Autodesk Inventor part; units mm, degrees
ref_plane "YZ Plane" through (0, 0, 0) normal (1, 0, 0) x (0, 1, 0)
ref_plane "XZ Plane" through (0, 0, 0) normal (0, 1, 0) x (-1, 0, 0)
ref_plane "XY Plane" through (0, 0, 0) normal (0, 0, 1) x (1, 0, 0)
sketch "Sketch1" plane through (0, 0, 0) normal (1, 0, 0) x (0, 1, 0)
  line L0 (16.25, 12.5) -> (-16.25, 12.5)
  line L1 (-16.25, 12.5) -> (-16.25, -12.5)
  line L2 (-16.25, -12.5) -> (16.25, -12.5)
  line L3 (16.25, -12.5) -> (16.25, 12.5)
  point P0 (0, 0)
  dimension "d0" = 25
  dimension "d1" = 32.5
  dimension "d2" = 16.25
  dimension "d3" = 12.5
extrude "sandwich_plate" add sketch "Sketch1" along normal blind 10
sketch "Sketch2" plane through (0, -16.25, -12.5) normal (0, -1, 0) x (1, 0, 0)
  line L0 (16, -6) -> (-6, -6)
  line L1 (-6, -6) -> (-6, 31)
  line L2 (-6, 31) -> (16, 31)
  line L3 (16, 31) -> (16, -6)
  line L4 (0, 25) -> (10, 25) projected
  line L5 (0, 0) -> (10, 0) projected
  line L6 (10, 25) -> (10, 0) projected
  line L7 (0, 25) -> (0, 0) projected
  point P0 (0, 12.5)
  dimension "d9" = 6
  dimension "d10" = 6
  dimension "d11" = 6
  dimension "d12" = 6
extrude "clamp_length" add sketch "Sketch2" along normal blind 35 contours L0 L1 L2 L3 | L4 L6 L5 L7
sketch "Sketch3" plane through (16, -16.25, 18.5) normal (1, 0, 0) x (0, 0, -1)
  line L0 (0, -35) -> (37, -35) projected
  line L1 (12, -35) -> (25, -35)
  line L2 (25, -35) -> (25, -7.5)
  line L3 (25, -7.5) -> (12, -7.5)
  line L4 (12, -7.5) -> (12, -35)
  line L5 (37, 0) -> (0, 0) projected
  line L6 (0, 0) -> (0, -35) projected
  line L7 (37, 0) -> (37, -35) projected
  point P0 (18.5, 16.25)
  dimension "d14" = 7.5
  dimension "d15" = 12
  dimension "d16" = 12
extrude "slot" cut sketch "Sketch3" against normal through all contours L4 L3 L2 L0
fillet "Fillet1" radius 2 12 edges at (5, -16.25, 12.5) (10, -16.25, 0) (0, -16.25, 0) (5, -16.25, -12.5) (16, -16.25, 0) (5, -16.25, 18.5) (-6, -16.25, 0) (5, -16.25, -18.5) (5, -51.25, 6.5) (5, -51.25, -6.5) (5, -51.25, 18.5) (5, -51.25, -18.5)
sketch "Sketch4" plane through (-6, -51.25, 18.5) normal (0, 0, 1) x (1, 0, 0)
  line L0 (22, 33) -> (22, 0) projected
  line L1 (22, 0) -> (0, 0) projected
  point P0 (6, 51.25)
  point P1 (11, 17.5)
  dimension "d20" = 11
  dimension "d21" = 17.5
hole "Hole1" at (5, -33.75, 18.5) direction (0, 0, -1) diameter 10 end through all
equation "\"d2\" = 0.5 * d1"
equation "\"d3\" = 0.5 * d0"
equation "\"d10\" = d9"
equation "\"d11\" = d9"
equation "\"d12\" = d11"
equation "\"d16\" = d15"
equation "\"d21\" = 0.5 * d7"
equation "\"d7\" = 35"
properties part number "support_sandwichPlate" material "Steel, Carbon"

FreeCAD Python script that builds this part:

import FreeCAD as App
import Part
import Sketcher

V = App.Vector
Q = App.Units.Quantity


def edges_at(feature, points):
    """Names of the edges that pass closest to the given points."""
    edges = feature.Shape.Edges
    near = lambda p: min(range(len(edges)), key=lambda i: edges[i].distToShape(Part.Vertex(*p))[0])
    return sorted({f"Edge{near(p) + 1}" for p in points})


def add_polygon(sketch, points):
    """Adds a closed chain of lines whose ends are joined by coincident constraints."""
    first, n = sketch.GeometryCount, len(points)
    for a, b in zip(points, points[1:] + points[:1]):
        sketch.addGeometry(Part.LineSegment(App.Vector(*a, 0), App.Vector(*b, 0)), False)
    for i in range(n):
        sketch.addConstraint(Sketcher.Constraint("Coincident", first + i, 2, first + (i + 1) % n, 1))

doc = App.newDocument("Part")
body = doc.addObject("PartDesign::Body", "Body")

# Sketch on YZ plane
sketch1 = body.newObject("Sketcher::SketchObject", "Sketch")
sketch1.AttachmentSupport = (doc.getObject("YZ_Plane"), [""])
sketch1.MapMode = "FlatFace"
add_polygon(sketch1, [(16, -12), (16, 12), (-16, 12), (-16, -12)])  # lines 0-3
sketch1.addConstraint(Sketcher.Constraint("Vertical", 0))
sketch1.addConstraint(Sketcher.Constraint("Horizontal", 1))
sketch1.addConstraint(Sketcher.Constraint("Vertical", 2))
sketch1.addConstraint(Sketcher.Constraint("Horizontal", 3))
sketch1.addConstraint(Sketcher.Constraint("Symmetric", 0, 2, 2, 2, -1, 1))
sketch1.addConstraint(Sketcher.Constraint("DistanceY", 0, 1, 0, 2, Q("25 mm")))
sketch1.addConstraint(Sketcher.Constraint("DistanceX", 1, 2, 1, 1, Q("32.5 mm")))
pad1 = body.newObject("PartDesign::Pad", "Pad")
pad1.Profile = sketch1
pad1.Length = 10

# Sketch on XZ plane
sketch2 = body.newObject("Sketcher::SketchObject", "Sketch001")
sketch2.AttachmentSupport = (doc.getObject("XZ_Plane"), [""])
sketch2.MapMode = "FlatFace"
sketch2.AttachmentOffset = App.Placement(V(0, 0, 16.25), App.Rotation())
add_polygon(sketch2, [(-6, -18), (16, -18), (16, 18), (-6, 18)])  # lines 0-3
sketch2.addConstraint(Sketcher.Constraint("Horizontal", 0))
sketch2.addConstraint(Sketcher.Constraint("Vertical", 1))
sketch2.addConstraint(Sketcher.Constraint("Horizontal", 2))
sketch2.addConstraint(Sketcher.Constraint("Vertical", 3))
sketch2.addConstraint(Sketcher.Constraint("DistanceX", 2, 2, -1, 1, Q("6 mm")))
sketch2.addConstraint(Sketcher.Constraint("DistanceX", 0, 1, 0, 2, Q("22 mm")))
sketch2.addConstraint(Sketcher.Constraint("DistanceY", 1, 1, 1, 2, Q("37 mm")))
sketch2.addConstraint(Sketcher.Constraint("DistanceY", 0, 2, -1, 1, Q("18.5 mm")))
pad2 = body.newObject("PartDesign::Pad", "Pad001")
pad2.Profile = sketch2
pad2.Length = 35

# Sketch on YZ plane
sketch3 = body.newObject("Sketcher::SketchObject", "Sketch002")
sketch3.AttachmentSupport = (doc.getObject("YZ_Plane"), [""])
sketch3.MapMode = "FlatFace"
sketch3.AttachmentOffset = App.Placement(V(0, 0, 16), App.Rotation())
add_polygon(sketch3, [(-24, 6), (-51, 6), (-51, -6), (-24, -6)])  # lines 0-3
sketch3.addConstraint(Sketcher.Constraint("Horizontal", 0))
sketch3.addConstraint(Sketcher.Constraint("Vertical", 1))
sketch3.addConstraint(Sketcher.Constraint("Horizontal", 2))
sketch3.addConstraint(Sketcher.Constraint("Vertical", 3))
sketch3.addConstraint(Sketcher.Constraint("DistanceY", 1, 2, 1, 1, Q("13 mm")))
sketch3.addConstraint(Sketcher.Constraint("DistanceX", 0, 2, 0, 1, Q("27.5 mm")))
sketch3.addConstraint(Sketcher.Constraint("DistanceY", -1, 1, 0, 2, Q("6.5 mm")))
sketch3.addConstraint(Sketcher.Constraint("DistanceX", 0, 2, -1, 1, Q("51.25 mm")))
pocket1 = body.newObject("PartDesign::Pocket", "Pocket")
pocket1.Profile = sketch3
pocket1.Type = "ThroughAll"
doc.recompute()

fillet = body.newObject("PartDesign::Fillet", "Fillet")
fillet.Base = (pocket1, edges_at(pocket1, [
    (5, -16.25, 12.5),
    (10, -16.25, 0),
    (0, -16.25, 0),
    (5, -16.25, -12.5),
    (16, -16.25, 0),
    (5, -16.25, 18.5),
    (-6, -16.25, 0),
    (5, -16.25, -18.5),
    (5, -51.25, 6.5),
    (5, -51.25, -6.5),
    (5, -51.25, 18.5),
    (5, -51.25, -18.5),
]))
fillet.Radius = 2

# Sketch on XY plane
sketch4 = body.newObject("Sketcher::SketchObject", "Sketch003")
sketch4.AttachmentSupport = (doc.getObject("XY_Plane"), [""])
sketch4.MapMode = "FlatFace"
sketch4.AttachmentOffset = App.Placement(V(0, 0, 18.5), App.Rotation())
sketch4.addGeometry(Part.Circle(V(5, -34, 0), V(0, 0, 1), 5), False)
sketch4.addConstraint(Sketcher.Constraint("Diameter", 0, Q("10 mm")))
sketch4.addConstraint(Sketcher.Constraint("DistanceX", -1, 1, 0, 3, Q("5 mm")))
sketch4.addConstraint(Sketcher.Constraint("DistanceY", 0, 3, -1, 1, Q("33.75 mm")))
doc.recompute()
hole = body.newObject("PartDesign::Hole", "Hole")
hole.Profile = sketch4
hole.ThreadType = "None"
hole.Diameter = 10
hole.DepthType = "ThroughAll"

doc.recompute()
